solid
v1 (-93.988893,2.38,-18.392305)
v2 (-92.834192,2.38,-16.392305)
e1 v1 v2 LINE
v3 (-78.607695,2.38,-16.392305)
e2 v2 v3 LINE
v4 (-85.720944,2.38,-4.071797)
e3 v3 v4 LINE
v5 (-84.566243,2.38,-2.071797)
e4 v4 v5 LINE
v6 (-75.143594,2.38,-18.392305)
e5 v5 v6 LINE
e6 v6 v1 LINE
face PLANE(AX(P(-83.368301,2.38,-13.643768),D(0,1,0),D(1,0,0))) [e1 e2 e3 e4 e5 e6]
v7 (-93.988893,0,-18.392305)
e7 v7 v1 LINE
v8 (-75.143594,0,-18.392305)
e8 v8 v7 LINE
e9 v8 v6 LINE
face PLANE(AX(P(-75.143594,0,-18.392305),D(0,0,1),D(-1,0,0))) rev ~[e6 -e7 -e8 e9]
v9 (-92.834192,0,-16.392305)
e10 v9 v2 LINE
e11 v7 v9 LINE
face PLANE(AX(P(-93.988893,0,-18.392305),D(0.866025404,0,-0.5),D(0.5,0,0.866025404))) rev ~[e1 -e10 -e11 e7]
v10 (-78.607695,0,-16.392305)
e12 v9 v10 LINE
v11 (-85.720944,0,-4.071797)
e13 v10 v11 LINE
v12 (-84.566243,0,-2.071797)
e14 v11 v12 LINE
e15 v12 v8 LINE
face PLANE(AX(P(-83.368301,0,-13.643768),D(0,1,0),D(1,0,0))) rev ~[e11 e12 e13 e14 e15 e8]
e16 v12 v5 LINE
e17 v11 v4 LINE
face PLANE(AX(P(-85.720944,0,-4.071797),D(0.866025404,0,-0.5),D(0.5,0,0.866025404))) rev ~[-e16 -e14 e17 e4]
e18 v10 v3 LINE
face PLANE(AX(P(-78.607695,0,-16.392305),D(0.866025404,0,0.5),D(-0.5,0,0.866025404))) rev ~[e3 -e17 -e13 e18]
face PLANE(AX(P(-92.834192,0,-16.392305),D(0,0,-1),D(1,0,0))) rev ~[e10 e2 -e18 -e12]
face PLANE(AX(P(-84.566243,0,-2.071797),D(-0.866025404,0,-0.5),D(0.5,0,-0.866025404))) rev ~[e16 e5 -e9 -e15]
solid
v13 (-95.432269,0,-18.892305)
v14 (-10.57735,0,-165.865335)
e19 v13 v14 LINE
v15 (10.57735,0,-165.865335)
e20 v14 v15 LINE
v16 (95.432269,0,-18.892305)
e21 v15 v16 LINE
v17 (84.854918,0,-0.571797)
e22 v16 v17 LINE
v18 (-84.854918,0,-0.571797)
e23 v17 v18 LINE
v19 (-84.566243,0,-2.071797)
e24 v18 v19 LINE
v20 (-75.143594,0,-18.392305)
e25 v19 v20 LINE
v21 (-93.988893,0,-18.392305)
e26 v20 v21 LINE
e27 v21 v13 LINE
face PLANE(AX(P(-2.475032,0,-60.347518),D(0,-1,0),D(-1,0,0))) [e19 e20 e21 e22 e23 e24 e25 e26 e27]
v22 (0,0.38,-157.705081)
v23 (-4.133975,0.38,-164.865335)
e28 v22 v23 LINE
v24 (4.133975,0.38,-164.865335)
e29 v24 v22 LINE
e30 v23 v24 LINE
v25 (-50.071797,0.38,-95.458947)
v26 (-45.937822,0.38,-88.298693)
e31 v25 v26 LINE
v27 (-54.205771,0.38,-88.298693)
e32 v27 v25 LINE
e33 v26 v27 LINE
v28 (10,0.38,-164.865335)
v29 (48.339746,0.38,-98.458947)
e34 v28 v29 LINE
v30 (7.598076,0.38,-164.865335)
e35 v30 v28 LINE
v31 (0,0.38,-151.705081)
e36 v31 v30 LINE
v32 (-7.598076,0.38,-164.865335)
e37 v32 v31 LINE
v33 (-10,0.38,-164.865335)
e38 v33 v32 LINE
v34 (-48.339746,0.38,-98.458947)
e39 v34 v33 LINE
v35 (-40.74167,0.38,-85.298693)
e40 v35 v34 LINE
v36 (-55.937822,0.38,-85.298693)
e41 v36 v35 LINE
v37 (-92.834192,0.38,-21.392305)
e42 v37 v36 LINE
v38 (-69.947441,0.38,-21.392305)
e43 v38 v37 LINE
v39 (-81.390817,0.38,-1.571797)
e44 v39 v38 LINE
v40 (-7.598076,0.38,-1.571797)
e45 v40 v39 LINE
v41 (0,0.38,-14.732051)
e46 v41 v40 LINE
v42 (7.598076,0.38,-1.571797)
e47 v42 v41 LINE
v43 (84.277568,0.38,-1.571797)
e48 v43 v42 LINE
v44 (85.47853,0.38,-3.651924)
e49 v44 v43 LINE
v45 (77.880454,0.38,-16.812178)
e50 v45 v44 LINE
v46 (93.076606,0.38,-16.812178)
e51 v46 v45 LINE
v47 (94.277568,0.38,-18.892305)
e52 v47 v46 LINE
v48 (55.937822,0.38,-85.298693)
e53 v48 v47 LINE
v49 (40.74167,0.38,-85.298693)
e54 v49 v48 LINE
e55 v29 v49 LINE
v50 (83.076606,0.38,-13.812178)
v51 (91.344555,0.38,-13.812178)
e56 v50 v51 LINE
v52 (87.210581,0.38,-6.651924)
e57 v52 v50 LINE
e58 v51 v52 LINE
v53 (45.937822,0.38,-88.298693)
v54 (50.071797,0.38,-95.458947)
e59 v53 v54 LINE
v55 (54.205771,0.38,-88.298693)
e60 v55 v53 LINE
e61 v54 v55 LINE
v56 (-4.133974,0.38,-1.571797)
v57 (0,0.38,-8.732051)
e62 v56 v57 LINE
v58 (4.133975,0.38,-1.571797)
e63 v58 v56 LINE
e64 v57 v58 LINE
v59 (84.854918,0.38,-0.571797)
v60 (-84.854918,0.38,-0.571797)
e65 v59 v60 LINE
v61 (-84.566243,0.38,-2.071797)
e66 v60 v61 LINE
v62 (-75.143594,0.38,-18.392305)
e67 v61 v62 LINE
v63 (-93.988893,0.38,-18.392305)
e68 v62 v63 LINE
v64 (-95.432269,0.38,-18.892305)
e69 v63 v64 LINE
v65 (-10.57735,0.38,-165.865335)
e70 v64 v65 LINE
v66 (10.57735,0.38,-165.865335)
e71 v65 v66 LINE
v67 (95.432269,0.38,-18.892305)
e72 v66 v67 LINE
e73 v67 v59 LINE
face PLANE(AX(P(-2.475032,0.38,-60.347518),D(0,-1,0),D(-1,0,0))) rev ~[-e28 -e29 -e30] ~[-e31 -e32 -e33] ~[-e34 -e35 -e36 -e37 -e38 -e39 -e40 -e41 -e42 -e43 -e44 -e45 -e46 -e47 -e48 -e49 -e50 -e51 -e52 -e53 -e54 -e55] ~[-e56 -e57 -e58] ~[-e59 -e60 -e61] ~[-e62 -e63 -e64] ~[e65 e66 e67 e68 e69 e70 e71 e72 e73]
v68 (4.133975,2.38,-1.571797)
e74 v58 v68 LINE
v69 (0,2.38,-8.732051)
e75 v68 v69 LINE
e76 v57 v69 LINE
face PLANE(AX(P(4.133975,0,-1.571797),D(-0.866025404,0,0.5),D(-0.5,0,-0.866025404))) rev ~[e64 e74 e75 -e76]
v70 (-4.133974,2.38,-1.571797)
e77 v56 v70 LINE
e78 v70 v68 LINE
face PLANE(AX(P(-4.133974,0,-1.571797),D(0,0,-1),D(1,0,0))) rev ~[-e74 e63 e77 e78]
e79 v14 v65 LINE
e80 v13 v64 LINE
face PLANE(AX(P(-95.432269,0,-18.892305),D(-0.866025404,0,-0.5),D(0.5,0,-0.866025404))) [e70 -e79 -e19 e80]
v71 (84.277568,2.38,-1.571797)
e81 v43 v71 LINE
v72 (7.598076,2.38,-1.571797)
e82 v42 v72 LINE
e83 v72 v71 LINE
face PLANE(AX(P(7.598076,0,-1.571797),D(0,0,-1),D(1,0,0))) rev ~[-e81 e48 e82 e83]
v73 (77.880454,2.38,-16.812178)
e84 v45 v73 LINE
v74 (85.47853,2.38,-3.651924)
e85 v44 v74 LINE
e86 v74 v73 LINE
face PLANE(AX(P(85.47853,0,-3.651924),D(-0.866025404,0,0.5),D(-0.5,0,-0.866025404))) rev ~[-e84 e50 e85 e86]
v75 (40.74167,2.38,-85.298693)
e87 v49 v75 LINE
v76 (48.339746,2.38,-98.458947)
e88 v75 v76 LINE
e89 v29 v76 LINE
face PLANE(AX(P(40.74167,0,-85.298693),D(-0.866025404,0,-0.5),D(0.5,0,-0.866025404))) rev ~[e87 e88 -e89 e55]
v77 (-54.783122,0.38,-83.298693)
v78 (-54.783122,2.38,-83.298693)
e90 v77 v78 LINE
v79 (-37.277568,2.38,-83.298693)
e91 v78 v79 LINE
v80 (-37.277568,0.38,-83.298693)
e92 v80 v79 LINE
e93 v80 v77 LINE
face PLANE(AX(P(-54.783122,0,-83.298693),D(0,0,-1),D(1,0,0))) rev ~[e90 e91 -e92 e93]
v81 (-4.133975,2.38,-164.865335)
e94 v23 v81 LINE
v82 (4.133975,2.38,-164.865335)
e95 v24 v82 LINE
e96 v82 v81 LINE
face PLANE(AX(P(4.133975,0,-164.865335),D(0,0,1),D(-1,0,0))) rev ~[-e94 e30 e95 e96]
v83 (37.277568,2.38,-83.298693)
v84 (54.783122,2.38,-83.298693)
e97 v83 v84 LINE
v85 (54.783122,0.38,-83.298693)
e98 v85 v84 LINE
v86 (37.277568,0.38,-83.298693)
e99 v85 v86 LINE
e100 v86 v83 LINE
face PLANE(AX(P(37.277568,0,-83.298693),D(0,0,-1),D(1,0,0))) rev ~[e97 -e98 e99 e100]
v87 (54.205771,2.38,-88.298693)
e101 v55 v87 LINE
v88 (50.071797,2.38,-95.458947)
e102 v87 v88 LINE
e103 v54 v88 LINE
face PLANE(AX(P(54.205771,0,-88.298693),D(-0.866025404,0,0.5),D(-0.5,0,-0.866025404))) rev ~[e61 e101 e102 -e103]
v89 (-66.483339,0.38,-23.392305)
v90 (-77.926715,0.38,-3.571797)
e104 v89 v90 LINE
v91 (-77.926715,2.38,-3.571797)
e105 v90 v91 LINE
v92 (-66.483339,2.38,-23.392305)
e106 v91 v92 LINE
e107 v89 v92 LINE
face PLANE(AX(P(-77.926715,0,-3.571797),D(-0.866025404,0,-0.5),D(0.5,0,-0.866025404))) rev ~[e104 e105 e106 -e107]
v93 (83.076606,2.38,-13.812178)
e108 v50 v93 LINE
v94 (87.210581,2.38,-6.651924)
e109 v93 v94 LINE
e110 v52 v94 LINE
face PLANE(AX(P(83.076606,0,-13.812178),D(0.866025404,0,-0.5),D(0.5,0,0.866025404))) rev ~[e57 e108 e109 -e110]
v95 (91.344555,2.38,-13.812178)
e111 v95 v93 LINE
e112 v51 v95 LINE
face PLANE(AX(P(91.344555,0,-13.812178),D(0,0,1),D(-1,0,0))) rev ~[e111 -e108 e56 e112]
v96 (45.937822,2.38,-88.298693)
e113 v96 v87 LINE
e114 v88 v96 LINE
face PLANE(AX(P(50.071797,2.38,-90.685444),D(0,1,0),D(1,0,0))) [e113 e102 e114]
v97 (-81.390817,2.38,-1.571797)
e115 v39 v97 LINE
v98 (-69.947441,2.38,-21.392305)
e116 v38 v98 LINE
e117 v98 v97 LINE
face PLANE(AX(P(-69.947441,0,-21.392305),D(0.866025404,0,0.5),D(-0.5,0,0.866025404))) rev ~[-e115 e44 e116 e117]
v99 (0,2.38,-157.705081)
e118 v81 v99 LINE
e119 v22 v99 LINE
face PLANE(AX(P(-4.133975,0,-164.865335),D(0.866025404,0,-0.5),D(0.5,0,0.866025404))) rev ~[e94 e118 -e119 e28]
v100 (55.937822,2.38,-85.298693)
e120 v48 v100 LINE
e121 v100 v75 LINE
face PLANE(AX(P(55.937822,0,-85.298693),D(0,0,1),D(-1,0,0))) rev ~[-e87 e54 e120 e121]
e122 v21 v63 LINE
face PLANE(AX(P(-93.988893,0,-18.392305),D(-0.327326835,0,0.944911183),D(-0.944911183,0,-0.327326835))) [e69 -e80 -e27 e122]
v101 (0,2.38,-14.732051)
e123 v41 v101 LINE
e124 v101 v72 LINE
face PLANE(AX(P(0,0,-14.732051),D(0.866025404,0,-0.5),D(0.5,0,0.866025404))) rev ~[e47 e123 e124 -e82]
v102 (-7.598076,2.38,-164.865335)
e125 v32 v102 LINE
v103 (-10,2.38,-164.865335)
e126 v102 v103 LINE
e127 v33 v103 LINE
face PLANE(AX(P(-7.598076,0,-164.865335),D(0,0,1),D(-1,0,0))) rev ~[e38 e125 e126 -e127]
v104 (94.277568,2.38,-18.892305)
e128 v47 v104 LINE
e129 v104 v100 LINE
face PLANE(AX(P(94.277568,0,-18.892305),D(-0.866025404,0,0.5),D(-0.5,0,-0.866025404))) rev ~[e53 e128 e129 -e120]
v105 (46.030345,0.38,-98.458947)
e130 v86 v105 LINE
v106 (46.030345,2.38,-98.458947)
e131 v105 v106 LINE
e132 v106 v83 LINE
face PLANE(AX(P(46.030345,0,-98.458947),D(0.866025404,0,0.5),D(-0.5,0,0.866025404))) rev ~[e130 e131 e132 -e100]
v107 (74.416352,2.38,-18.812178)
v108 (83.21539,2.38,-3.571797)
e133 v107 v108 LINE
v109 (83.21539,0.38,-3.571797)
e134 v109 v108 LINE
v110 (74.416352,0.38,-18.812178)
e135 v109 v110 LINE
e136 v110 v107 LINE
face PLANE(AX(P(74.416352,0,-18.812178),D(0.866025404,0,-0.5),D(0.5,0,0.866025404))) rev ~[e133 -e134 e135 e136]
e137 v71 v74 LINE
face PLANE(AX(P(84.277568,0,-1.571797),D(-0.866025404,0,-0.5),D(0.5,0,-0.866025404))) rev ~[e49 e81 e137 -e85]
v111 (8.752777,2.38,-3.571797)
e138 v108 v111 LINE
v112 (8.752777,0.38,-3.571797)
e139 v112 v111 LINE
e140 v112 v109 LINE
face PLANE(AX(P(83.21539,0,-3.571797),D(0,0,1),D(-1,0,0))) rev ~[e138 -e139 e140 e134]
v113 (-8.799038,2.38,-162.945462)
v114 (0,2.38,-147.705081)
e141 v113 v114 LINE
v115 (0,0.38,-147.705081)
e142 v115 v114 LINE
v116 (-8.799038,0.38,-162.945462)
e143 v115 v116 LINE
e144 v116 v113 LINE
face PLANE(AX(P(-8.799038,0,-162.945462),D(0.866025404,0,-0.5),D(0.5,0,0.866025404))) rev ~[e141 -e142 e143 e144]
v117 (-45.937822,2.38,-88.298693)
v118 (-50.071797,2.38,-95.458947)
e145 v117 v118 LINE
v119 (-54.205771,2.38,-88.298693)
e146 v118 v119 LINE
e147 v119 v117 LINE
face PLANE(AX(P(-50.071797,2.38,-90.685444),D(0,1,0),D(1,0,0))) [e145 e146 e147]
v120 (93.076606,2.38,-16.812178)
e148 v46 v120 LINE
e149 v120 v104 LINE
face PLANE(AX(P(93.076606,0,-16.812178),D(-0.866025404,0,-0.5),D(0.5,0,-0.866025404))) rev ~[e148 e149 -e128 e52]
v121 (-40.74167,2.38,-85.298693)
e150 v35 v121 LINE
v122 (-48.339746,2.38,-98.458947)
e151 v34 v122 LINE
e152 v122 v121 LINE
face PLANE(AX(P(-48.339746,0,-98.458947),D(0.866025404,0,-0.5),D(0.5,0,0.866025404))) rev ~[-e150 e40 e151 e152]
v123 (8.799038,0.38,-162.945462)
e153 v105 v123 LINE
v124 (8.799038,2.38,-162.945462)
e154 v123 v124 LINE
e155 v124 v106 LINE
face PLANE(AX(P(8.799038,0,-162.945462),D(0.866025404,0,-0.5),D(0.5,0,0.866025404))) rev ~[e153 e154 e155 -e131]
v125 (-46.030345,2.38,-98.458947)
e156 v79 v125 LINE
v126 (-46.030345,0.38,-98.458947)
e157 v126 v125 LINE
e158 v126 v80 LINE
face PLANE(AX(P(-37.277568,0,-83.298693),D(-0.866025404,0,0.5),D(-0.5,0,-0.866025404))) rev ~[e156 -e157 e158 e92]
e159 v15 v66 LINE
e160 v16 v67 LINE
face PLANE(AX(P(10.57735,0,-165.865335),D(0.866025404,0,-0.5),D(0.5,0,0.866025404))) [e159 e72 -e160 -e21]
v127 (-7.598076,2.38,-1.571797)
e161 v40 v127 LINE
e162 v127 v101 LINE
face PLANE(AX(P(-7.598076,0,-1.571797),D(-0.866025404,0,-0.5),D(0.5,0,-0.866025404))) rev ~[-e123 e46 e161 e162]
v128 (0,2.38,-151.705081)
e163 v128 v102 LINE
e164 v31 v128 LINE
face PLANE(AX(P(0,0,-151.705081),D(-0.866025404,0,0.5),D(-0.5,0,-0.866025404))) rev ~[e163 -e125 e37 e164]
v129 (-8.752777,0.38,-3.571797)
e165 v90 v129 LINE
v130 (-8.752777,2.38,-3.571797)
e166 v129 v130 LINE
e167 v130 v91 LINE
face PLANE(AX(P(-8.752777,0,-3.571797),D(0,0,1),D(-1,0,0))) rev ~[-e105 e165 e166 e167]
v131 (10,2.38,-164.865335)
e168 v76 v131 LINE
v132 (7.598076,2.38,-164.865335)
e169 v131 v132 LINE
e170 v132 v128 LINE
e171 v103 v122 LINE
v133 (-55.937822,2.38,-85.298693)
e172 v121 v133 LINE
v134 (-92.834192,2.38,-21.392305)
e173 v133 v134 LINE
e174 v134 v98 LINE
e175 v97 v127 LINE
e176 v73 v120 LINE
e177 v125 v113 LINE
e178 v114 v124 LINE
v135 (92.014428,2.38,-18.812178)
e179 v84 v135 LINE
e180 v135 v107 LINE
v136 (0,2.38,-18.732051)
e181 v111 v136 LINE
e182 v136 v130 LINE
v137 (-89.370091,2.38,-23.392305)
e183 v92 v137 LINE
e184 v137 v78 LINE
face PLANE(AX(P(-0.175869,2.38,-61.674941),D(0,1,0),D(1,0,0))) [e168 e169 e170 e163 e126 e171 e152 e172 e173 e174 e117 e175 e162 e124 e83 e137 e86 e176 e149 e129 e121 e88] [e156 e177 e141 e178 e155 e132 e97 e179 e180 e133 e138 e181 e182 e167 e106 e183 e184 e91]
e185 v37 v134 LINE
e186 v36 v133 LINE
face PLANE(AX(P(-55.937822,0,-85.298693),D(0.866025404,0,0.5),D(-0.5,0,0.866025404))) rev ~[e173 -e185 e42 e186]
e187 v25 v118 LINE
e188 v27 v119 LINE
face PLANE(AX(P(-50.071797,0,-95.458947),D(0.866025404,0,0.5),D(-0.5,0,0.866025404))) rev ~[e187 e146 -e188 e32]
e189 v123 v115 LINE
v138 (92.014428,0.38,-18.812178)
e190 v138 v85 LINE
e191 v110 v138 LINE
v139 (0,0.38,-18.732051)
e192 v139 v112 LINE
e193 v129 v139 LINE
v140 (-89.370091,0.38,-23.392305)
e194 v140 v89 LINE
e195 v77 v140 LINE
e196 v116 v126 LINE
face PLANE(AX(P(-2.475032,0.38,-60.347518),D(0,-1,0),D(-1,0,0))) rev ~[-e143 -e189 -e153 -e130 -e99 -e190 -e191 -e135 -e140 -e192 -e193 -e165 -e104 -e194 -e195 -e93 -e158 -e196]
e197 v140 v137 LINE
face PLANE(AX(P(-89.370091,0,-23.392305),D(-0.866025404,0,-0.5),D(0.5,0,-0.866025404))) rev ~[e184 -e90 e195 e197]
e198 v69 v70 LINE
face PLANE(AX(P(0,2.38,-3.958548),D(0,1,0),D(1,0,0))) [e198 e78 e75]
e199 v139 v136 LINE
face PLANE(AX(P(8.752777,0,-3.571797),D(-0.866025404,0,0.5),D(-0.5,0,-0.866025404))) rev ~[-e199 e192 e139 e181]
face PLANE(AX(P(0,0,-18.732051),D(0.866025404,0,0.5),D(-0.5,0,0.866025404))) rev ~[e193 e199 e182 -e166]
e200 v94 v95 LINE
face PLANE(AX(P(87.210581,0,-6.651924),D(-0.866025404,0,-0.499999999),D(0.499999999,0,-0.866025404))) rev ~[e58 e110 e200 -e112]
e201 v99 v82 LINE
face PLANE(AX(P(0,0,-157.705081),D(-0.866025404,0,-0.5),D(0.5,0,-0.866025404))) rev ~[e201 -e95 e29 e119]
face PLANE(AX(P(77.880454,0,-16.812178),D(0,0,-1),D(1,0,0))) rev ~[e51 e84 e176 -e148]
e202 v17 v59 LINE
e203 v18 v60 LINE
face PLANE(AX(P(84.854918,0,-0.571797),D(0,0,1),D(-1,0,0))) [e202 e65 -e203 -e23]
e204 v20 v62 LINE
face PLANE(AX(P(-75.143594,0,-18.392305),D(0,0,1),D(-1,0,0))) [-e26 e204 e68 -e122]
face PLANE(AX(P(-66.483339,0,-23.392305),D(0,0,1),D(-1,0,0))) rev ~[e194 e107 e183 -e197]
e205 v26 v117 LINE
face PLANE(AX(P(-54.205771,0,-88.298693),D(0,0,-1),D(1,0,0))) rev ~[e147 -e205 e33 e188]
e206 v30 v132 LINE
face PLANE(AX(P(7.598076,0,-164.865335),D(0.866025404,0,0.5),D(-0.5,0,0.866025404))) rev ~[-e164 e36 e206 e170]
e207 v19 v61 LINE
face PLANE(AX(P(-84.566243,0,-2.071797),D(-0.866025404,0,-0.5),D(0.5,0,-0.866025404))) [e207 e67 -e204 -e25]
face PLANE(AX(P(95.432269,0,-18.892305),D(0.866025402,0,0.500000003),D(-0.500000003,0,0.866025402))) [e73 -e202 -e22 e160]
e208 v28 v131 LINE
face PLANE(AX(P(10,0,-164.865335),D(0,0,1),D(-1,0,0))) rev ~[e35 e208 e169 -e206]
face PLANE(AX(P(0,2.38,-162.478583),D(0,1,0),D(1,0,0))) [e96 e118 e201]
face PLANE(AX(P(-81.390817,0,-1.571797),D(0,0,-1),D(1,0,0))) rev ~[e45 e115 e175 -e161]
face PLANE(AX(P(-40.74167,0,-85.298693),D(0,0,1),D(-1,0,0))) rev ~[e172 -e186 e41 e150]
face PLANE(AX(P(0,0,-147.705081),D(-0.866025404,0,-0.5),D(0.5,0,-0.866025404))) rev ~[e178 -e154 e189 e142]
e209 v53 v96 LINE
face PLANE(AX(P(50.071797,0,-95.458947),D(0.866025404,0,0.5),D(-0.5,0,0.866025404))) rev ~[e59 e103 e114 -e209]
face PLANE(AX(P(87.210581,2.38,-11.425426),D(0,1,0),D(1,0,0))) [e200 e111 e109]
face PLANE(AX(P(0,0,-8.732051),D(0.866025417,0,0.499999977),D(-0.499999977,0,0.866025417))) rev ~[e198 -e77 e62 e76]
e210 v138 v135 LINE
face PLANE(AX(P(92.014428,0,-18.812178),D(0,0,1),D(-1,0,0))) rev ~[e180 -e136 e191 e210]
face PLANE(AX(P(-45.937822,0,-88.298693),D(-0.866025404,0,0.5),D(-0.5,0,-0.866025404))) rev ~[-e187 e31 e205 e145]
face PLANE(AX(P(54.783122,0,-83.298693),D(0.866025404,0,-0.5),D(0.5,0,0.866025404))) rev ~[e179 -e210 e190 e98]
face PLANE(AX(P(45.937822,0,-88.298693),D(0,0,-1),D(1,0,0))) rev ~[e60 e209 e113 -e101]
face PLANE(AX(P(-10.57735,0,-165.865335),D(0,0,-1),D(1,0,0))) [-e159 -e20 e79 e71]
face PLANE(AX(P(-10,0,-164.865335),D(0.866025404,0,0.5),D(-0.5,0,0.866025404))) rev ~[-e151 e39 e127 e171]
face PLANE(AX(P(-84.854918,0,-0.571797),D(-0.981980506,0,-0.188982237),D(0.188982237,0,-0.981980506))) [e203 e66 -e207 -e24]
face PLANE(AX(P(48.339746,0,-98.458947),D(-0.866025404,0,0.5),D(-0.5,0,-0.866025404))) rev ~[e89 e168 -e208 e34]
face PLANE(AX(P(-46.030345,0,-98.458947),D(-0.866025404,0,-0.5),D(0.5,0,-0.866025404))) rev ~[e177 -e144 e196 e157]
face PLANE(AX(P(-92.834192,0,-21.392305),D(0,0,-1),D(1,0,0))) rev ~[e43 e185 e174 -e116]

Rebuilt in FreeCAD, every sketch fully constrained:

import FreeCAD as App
import Part
import Sketcher

V = App.Vector
Q = App.Units.Quantity

doc = App.newDocument("Part")
params = doc.addObject("Spreadsheet::Sheet", "Params")
for row, (alias, value) in enumerate([
    ("pad1_length", "2.38 mm"),
    ("pad2_length", "2.38 mm"),
    ("pad3_length", "2.38 mm"),
    ("pad4_length", "2.38 mm"),
    ("pad5_length", "2.38 mm"),
    ("pad6_length", "2.38 mm"),
    ("pad7_length", "2.38 mm"),
    ("pad8_length", "0.38 mm"),
], start=1):
    params.set(f"A{row}", alias)
    params.set(f"B{row}", "=" + value)
    params.setAlias(f"B{row}", alias)

body = doc.addObject("PartDesign::Body", "Body")

# Sketch on XZ plane
sketch1 = body.newObject("Sketcher::SketchObject", "Sketch")
sketch1.AttachmentSupport = (doc.getObject("XZ_Plane"), [""])
sketch1.MapMode = "FlatFace"
sketch1.addGeometry(Part.LineSegment(V(-85.720944, -4.071797, 0), V(-84.566243, -2.071797, 0)), False)
sketch1.addGeometry(Part.LineSegment(V(-84.566243, -2.071797, 0), V(-75.143594, -18.392305, 0)), False)
sketch1.addGeometry(Part.LineSegment(V(-75.143594, -18.392305, 0), V(-93.988893, -18.392305, 0)), False)
sketch1.addGeometry(Part.LineSegment(V(-93.988893, -18.392305, 0), V(-92.834192, -16.392305, 0)), False)
sketch1.addGeometry(Part.LineSegment(V(-92.834192, -16.392305, 0), V(-78.607695, -16.392305, 0)), False)
sketch1.addGeometry(Part.LineSegment(V(-78.607695, -16.392305, 0), V(-85.720944, -4.071797, 0)), False)
sketch1.addConstraint(Sketcher.Constraint("Coincident", 0, 2, 1, 1))
sketch1.addConstraint(Sketcher.Constraint("Coincident", 1, 2, 2, 1))
sketch1.addConstraint(Sketcher.Constraint("Coincident", 2, 2, 3, 1))
sketch1.addConstraint(Sketcher.Constraint("Coincident", 3, 2, 4, 1))
sketch1.addConstraint(Sketcher.Constraint("Coincident", 4, 2, 5, 1))
sketch1.addConstraint(Sketcher.Constraint("Coincident", 5, 2, 0, 1))
sketch1.addConstraint(Sketcher.Constraint("Horizontal", 2))
sketch1.addConstraint(Sketcher.Constraint("Horizontal", 4))
sketch1.addConstraint(Sketcher.Constraint("Parallel", 0, 3))
sketch1.addConstraint(Sketcher.Constraint("Parallel", 1, 5))
sketch1.addConstraint(Sketcher.Constraint("Equal", 0, 3))
sketch1.addConstraint(Sketcher.Constraint("Angle", 0, Q("60 deg")))
sketch1.addConstraint(Sketcher.Constraint("Angle", 1, Q("-60 deg")))
sketch1.addConstraint(Sketcher.Constraint("DistanceY", 2, 2, 3, 2, 2.0))
sketch1.addConstraint(Sketcher.Constraint("DistanceX", 2, 2, 2, 1, 18.845299))
sketch1.addConstraint(Sketcher.Constraint("Distance", 1, 18.845299))
sketch1.addConstraint(Sketcher.Constraint("DistanceX", 0, 2, -1, 1, 84.566243))
sketch1.addConstraint(Sketcher.Constraint("DistanceY", 0, 2, -1, 1, 2.071797))
pad1 = body.newObject("PartDesign::Pad", "Pad")
pad1.Profile = sketch1
pad1.setExpression("Length", "Params.pad1_length")
pad1.Reversed = True
body2 = doc.addObject("PartDesign::Body", "Body001")

# Sketch on XZ plane
sketch2 = body2.newObject("Sketcher::SketchObject", "Sketch001")
sketch2.AttachmentSupport = (doc.getObject("XZ_Plane001"), [""])
sketch2.MapMode = "FlatFace"
sketch2.addGeometry(Part.LineSegment(V(0, -8.732051, 0), V(-4.133974, -1.571797, 0)), False)
sketch2.addGeometry(Part.LineSegment(V(-4.133974, -1.571797, 0), V(4.133975, -1.571797, 0)), False)
sketch2.addGeometry(Part.LineSegment(V(4.133975, -1.571797, 0), V(0, -8.732051, 0)), False)
sketch2.addConstraint(Sketcher.Constraint("Coincident", 0, 2, 1, 1))
sketch2.addConstraint(Sketcher.Constraint("Coincident", 1, 2, 2, 1))
sketch2.addConstraint(Sketcher.Constraint("Coincident", 2, 2, 0, 1))
sketch2.addConstraint(Sketcher.Constraint("Horizontal", 1))
sketch2.addConstraint(Sketcher.Constraint("PointOnObject", 2, 2, -2))
sketch2.addConstraint(Sketcher.Constraint("Equal", 0, 2))
sketch2.addConstraint(Sketcher.Constraint("Angle", 0, Q("119.999998 deg")))
sketch2.addConstraint(Sketcher.Constraint("DistanceX", 1, 1, 1, 2, 8.267949))
sketch2.addConstraint(Sketcher.Constraint("DistanceY", 2, 2, -1, 1, 8.732051))
pad2 = body2.newObject("PartDesign::Pad", "Pad001")
pad2.Profile = sketch2
pad2.setExpression("Length", "Params.pad2_length")
pad2.Reversed = True
body3 = doc.addObject("PartDesign::Body", "Body002")

# Sketch on XZ plane
sketch3 = body3.newObject("Sketcher::SketchObject", "Sketch002")
sketch3.AttachmentSupport = (doc.getObject("XZ_Plane002"), [""])
sketch3.MapMode = "FlatFace"
sketch3.addGeometry(Part.LineSegment(V(91.344555, -13.812178, 0), V(83.076606, -13.812178, 0)), False)
sketch3.addGeometry(Part.LineSegment(V(83.076606, -13.812178, 0), V(87.210581, -6.651924, 0)), False)
sketch3.addGeometry(Part.LineSegment(V(87.210581, -6.651924, 0), V(91.344555, -13.812178, 0)), False)
sketch3.addConstraint(Sketcher.Constraint("Coincident", 0, 2, 1, 1))
sketch3.addConstraint(Sketcher.Constraint("Coincident", 1, 2, 2, 1))
sketch3.addConstraint(Sketcher.Constraint("Coincident", 2, 2, 0, 1))
sketch3.addConstraint(Sketcher.Constraint("Horizontal", 0))
sketch3.addConstraint(Sketcher.Constraint("Equal", 1, 2))
sketch3.addConstraint(Sketcher.Constraint("Angle", 1, Q("60 deg")))
sketch3.addConstraint(Sketcher.Constraint("DistanceX", 0, 2, 0, 1, 8.267949))
sketch3.addConstraint(Sketcher.Constraint("DistanceX", -1, 1, 1, 2, 87.210581))
sketch3.addConstraint(Sketcher.Constraint("DistanceY", 0, 2, -1, 1, 13.812178))
pad3 = body3.newObject("PartDesign::Pad", "Pad002")
pad3.Profile = sketch3
pad3.setExpression("Length", "Params.pad3_length")
pad3.Reversed = True
body4 = doc.addObject("PartDesign::Body", "Body003")

# Sketch on XZ plane
sketch4 = body4.newObject("Sketcher::SketchObject", "Sketch003")
sketch4.AttachmentSupport = (doc.getObject("XZ_Plane003"), [""])
sketch4.MapMode = "FlatFace"
sketch4.addGeometry(Part.LineSegment(V(50.071797, -95.458947, 0), V(45.937822, -88.298693, 0)), False)
sketch4.addGeometry(Part.LineSegment(V(45.937822, -88.298693, 0), V(54.205771, -88.298693, 0)), False)
sketch4.addGeometry(Part.LineSegment(V(54.205771, -88.298693, 0), V(50.071797, -95.458947, 0)), False)
sketch4.addConstraint(Sketcher.Constraint("Coincident", 0, 2, 1, 1))
sketch4.addConstraint(Sketcher.Constraint("Coincident", 1, 2, 2, 1))
sketch4.addConstraint(Sketcher.Constraint("Coincident", 2, 2, 0, 1))
sketch4.addConstraint(Sketcher.Constraint("Horizontal", 1))
sketch4.addConstraint(Sketcher.Constraint("Equal", 0, 2))
sketch4.addConstraint(Sketcher.Constraint("Angle", 0, Q("120 deg")))
sketch4.addConstraint(Sketcher.Constraint("DistanceX", 1, 1, 1, 2, 8.267949))
sketch4.addConstraint(Sketcher.Constraint("DistanceX", -1, 1, 1, 2, 54.205771))
sketch4.addConstraint(Sketcher.Constraint("DistanceY", 0, 2, -1, 1, 88.298693))
pad4 = body4.newObject("PartDesign::Pad", "Pad003")
pad4.Profile = sketch4
pad4.setExpression("Length", "Params.pad4_length")
pad4.Reversed = True
body5 = doc.addObject("PartDesign::Body", "Body004")

# Sketch on XZ plane
sketch5 = body5.newObject("Sketcher::SketchObject", "Sketch004")
sketch5.AttachmentSupport = (doc.getObject("XZ_Plane004"), [""])
sketch5.MapMode = "FlatFace"
sketch5.addGeometry(Part.LineSegment(V(4.133975, -164.865335, 0), V(-4.133975, -164.865335, 0)), False)
sketch5.addGeometry(Part.LineSegment(V(-4.133975, -164.865335, 0), V(0, -157.705081, 0)), False)
sketch5.addGeometry(Part.LineSegment(V(0, -157.705081, 0), V(4.133975, -164.865335, 0)), False)
sketch5.addConstraint(Sketcher.Constraint("Coincident", 0, 2, 1, 1))
sketch5.addConstraint(Sketcher.Constraint("Coincident", 1, 2, 2, 1))
sketch5.addConstraint(Sketcher.Constraint("Coincident", 2, 2, 0, 1))
sketch5.addConstraint(Sketcher.Constraint("Horizontal", 0))
sketch5.addConstraint(Sketcher.Constraint("PointOnObject", 1, 2, -2))
sketch5.addConstraint(Sketcher.Constraint("Equal", 1, 2))
sketch5.addConstraint(Sketcher.Constraint("Angle", 1, Q("60 deg")))
sketch5.addConstraint(Sketcher.Constraint("DistanceX", 0, 2, 0, 1, 8.267949))
sketch5.addConstraint(Sketcher.Constraint("DistanceY", 1, 2, -1, 1, 157.705081))
pad5 = body5.newObject("PartDesign::Pad", "Pad004")
pad5.Profile = sketch5
pad5.setExpression("Length", "Params.pad5_length")
pad5.Reversed = True
body6 = doc.addObject("PartDesign::Body", "Body005")

# Sketch on XZ plane
sketch6 = body6.newObject("Sketcher::SketchObject", "Sketch005")
sketch6.AttachmentSupport = (doc.getObject("XZ_Plane005"), [""])
sketch6.MapMode = "FlatFace"
sketch6.addGeometry(Part.LineSegment(V(-50.071797, -95.458947, 0), V(-54.205771, -88.298693, 0)), False)
sketch6.addGeometry(Part.LineSegment(V(-54.205771, -88.298693, 0), V(-45.937822, -88.298693, 0)), False)
sketch6.addGeometry(Part.LineSegment(V(-45.937822, -88.298693, 0), V(-50.071797, -95.458947, 0)), False)
sketch6.addConstraint(Sketcher.Constraint("Coincident", 0, 2, 1, 1))
sketch6.addConstraint(Sketcher.Constraint("Coincident", 1, 2, 2, 1))
sketch6.addConstraint(Sketcher.Constraint("Coincident", 2, 2, 0, 1))
sketch6.addConstraint(Sketcher.Constraint("Horizontal", 1))
sketch6.addConstraint(Sketcher.Constraint("Equal", 0, 2))
sketch6.addConstraint(Sketcher.Constraint("Angle", 0, Q("120 deg")))
sketch6.addConstraint(Sketcher.Constraint("DistanceX", 1, 1, 1, 2, 8.267949))
sketch6.addConstraint(Sketcher.Constraint("DistanceX", 0, 2, -1, 1, 54.205771))
sketch6.addConstraint(Sketcher.Constraint("DistanceY", 0, 2, -1, 1, 88.298693))
pad6 = body6.newObject("PartDesign::Pad", "Pad005")
pad6.Profile = sketch6
pad6.setExpression("Length", "Params.pad6_length")
pad6.Reversed = True
body7 = doc.addObject("PartDesign::Body", "Body006")
body7.AllowCompound = True

# Sketch on XZ plane
sketch7 = body7.newObject("Sketcher::SketchObject", "Sketch006")
sketch7.AttachmentSupport = (doc.getObject("XZ_Plane006"), [""])
sketch7.MapMode = "FlatFace"
sketch7.addGeometry(Part.LineSegment(V(-92.834192, -21.392305, 0), V(-69.947441, -21.392305, 0)), False)
sketch7.addGeometry(Part.LineSegment(V(-69.947441, -21.392305, 0), V(-81.390817, -1.571797, 0)), False)
sketch7.addGeometry(Part.LineSegment(V(-81.390817, -1.571797, 0), V(-7.598076, -1.571797, 0)), False)
sketch7.addGeometry(Part.LineSegment(V(-7.598076, -1.571797, 0), V(0, -14.732051, 0)), False)
sketch7.addGeometry(Part.LineSegment(V(0, -14.732051, 0), V(7.598076, -1.571797, 0)), False)
sketch7.addGeometry(Part.LineSegment(V(7.598076, -1.571797, 0), V(84.277568, -1.571797, 0)), False)
sketch7.addGeometry(Part.LineSegment(V(84.277568, -1.571797, 0), V(85.47853, -3.651924, 0)), False)
sketch7.addGeometry(Part.LineSegment(V(85.47853, -3.651924, 0), V(77.880454, -16.812178, 0)), False)
sketch7.addGeometry(Part.LineSegment(V(77.880454, -16.812178, 0), V(93.076606, -16.812178, 0)), False)
sketch7.addGeometry(Part.LineSegment(V(93.076606, -16.812178, 0), V(94.277568, -18.892305, 0)), False)
sketch7.addGeometry(Part.LineSegment(V(94.277568, -18.892305, 0), V(55.937822, -85.298693, 0)), False)
sketch7.addGeometry(Part.LineSegment(V(55.937822, -85.298693, 0), V(40.74167, -85.298693, 0)), False)
sketch7.addGeometry(Part.LineSegment(V(40.74167, -85.298693, 0), V(48.339746, -98.458947, 0)), False)
sketch7.addGeometry(Part.LineSegment(V(48.339746, -98.458947, 0), V(10, -164.865335, 0)), False)
sketch7.addGeometry(Part.LineSegment(V(10, -164.865335, 0), V(7.598076, -164.865335, 0)), False)
sketch7.addGeometry(Part.LineSegment(V(7.598076, -164.865335, 0), V(0, -151.705081, 0)), False)
sketch7.addGeometry(Part.LineSegment(V(0, -151.705081, 0), V(-7.598076, -164.865335, 0)), False)
sketch7.addGeometry(Part.LineSegment(V(-7.598076, -164.865335, 0), V(-10, -164.865335, 0)), False)
sketch7.addGeometry(Part.LineSegment(V(-10, -164.865335, 0), V(-48.339746, -98.458947, 0)), False)
sketch7.addGeometry(Part.LineSegment(V(-48.339746, -98.458947, 0), V(-40.74167, -85.298693, 0)), False)
sketch7.addGeometry(Part.LineSegment(V(-40.74167, -85.298693, 0), V(-55.937822, -85.298693, 0)), False)
sketch7.addGeometry(Part.LineSegment(V(-55.937822, -85.298693, 0), V(-92.834192, -21.392305, 0)), False)
sketch7.addGeometry(Part.LineSegment(V(0, -18.732051, 0), V(-8.752777, -3.571797, 0)), False)
sketch7.addGeometry(Part.LineSegment(V(-8.752777, -3.571797, 0), V(-77.926715, -3.571797, 0)), False)
sketch7.addGeometry(Part.LineSegment(V(-77.926715, -3.571797, 0), V(-66.483339, -23.392305, 0)), False)
sketch7.addGeometry(Part.LineSegment(V(-66.483339, -23.392305, 0), V(-89.370091, -23.392305, 0)), False)
sketch7.addGeometry(Part.LineSegment(V(-89.370091, -23.392305, 0), V(-54.783122, -83.298693, 0)), False)
sketch7.addGeometry(Part.LineSegment(V(-54.783122, -83.298693, 0), V(-37.277568, -83.298693, 0)), False)
sketch7.addGeometry(Part.LineSegment(V(-37.277568, -83.298693, 0), V(-46.030345, -98.458947, 0)), False)
sketch7.addGeometry(Part.LineSegment(V(-46.030345, -98.458947, 0), V(-8.799038, -162.945462, 0)), False)
sketch7.addGeometry(Part.LineSegment(V(-8.799038, -162.945462, 0), V(0, -147.705081, 0)), False)
sketch7.addGeometry(Part.LineSegment(V(0, -147.705081, 0), V(8.799038, -162.945462, 0)), False)
sketch7.addGeometry(Part.LineSegment(V(8.799038, -162.945462, 0), V(46.030345, -98.458947, 0)), False)
sketch7.addGeometry(Part.LineSegment(V(46.030345, -98.458947, 0), V(37.277568, -83.298693, 0)), False)
sketch7.addGeometry(Part.LineSegment(V(37.277568, -83.298693, 0), V(54.783122, -83.298693, 0)), False)
sketch7.addGeometry(Part.LineSegment(V(54.783122, -83.298693, 0), V(92.014428, -18.812178, 0)), False)
sketch7.addGeometry(Part.LineSegment(V(92.014428, -18.812178, 0), V(74.416352, -18.812178, 0)), False)
sketch7.addGeometry(Part.LineSegment(V(74.416352, -18.812178, 0), V(83.21539, -3.571797, 0)), False)
sketch7.addGeometry(Part.LineSegment(V(83.21539, -3.571797, 0), V(8.752777, -3.571797, 0)), False)
sketch7.addGeometry(Part.LineSegment(V(8.752777, -3.571797, 0), V(0, -18.732051, 0)), False)
sketch7.addConstraint(Sketcher.Constraint("Coincident", 0, 2, 1, 1))
sketch7.addConstraint(Sketcher.Constraint("Coincident", 1, 2, 2, 1))
sketch7.addConstraint(Sketcher.Constraint("Coincident", 2, 2, 3, 1))
sketch7.addConstraint(Sketcher.Constraint("Coincident", 3, 2, 4, 1))
sketch7.addConstraint(Sketcher.Constraint("Coincident", 4, 2, 5, 1))
sketch7.addConstraint(Sketcher.Constraint("Coincident", 5, 2, 6, 1))
sketch7.addConstraint(Sketcher.Constraint("Coincident", 6, 2, 7, 1))
sketch7.addConstraint(Sketcher.Constraint("Coincident", 7, 2, 8, 1))
sketch7.addConstraint(Sketcher.Constraint("Coincident", 8, 2, 9, 1))
sketch7.addConstraint(Sketcher.Constraint("Coincident", 9, 2, 10, 1))
sketch7.addConstraint(Sketcher.Constraint("Coincident", 10, 2, 11, 1))
sketch7.addConstraint(Sketcher.Constraint("Coincident", 11, 2, 12, 1))
sketch7.addConstraint(Sketcher.Constraint("Coincident", 12, 2, 13, 1))
sketch7.addConstraint(Sketcher.Constraint("Coincident", 13, 2, 14, 1))
sketch7.addConstraint(Sketcher.Constraint("Coincident", 14, 2, 15, 1))
sketch7.addConstraint(Sketcher.Constraint("Coincident", 15, 2, 16, 1))
sketch7.addConstraint(Sketcher.Constraint("Coincident", 16, 2, 17, 1))
sketch7.addConstraint(Sketcher.Constraint("Coincident", 17, 2, 18, 1))
sketch7.addConstraint(Sketcher.Constraint("Coincident", 18, 2, 19, 1))
sketch7.addConstraint(Sketcher.Constraint("Coincident", 19, 2, 20, 1))
sketch7.addConstraint(Sketcher.Constraint("Coincident", 20, 2, 21, 1))
sketch7.addConstraint(Sketcher.Constraint("Coincident", 21, 2, 0, 1))
sketch7.addConstraint(Sketcher.Constraint("Coincident", 22, 2, 23, 1))
sketch7.addConstraint(Sketcher.Constraint("Coincident", 23, 2, 24, 1))
sketch7.addConstraint(Sketcher.Constraint("Coincident", 24, 2, 25, 1))
sketch7.addConstraint(Sketcher.Constraint("Coincident", 25, 2, 26, 1))
sketch7.addConstraint(Sketcher.Constraint("Coincident", 26, 2, 27, 1))
sketch7.addConstraint(Sketcher.Constraint("Coincident", 27, 2, 28, 1))
sketch7.addConstraint(Sketcher.Constraint("Coincident", 28, 2, 29, 1))
sketch7.addConstraint(Sketcher.Constraint("Coincident", 29, 2, 30, 1))
sketch7.addConstraint(Sketcher.Constraint("Coincident", 30, 2, 31, 1))
sketch7.addConstraint(Sketcher.Constraint("Coincident", 31, 2, 32, 1))
sketch7.addConstraint(Sketcher.Constraint("Coincident", 32, 2, 33, 1))
sketch7.addConstraint(Sketcher.Constraint("Coincident", 33, 2, 34, 1))
sketch7.addConstraint(Sketcher.Constraint("Coincident", 34, 2, 35, 1))
sketch7.addConstraint(Sketcher.Constraint("Coincident", 35, 2, 36, 1))
sketch7.addConstraint(Sketcher.Constraint("Coincident", 36, 2, 37, 1))
sketch7.addConstraint(Sketcher.Constraint("Coincident", 37, 2, 38, 1))
sketch7.addConstraint(Sketcher.Constraint("Coincident", 38, 2, 39, 1))
sketch7.addConstraint(Sketcher.Constraint("Coincident", 39, 2, 22, 1))
sketch7.addConstraint(Sketcher.Constraint("Horizontal", 0))
sketch7.addConstraint(Sketcher.Constraint("Horizontal", 2))
sketch7.addConstraint(Sketcher.Constraint("Horizontal", 5))
sketch7.addConstraint(Sketcher.Constraint("Horizontal", 8))
sketch7.addConstraint(Sketcher.Constraint("Horizontal", 11))
sketch7.addConstraint(Sketcher.Constraint("Horizontal", 14))
sketch7.addConstraint(Sketcher.Constraint("Horizontal", 17))
sketch7.addConstraint(Sketcher.Constraint("Horizontal", 20))
sketch7.addConstraint(Sketcher.Constraint("Horizontal", 23))
sketch7.addConstraint(Sketcher.Constraint("Horizontal", 25))
sketch7.addConstraint(Sketcher.Constraint("Horizontal", 27))
sketch7.addConstraint(Sketcher.Constraint("Horizontal", 34))
sketch7.addConstraint(Sketcher.Constraint("Horizontal", 36))
sketch7.addConstraint(Sketcher.Constraint("Horizontal", 38))
sketch7.addConstraint(Sketcher.Constraint("Symmetric", 2, 2, 4, 2, -2))
sketch7.addConstraint(Sketcher.Constraint("Symmetric", 14, 2, 16, 2, -2))
sketch7.addConstraint(Sketcher.Constraint("Symmetric", 12, 2, 18, 2, -2))
sketch7.addConstraint(Sketcher.Constraint("Symmetric", 11, 2, 19, 2, -2))
sketch7.addConstraint(Sketcher.Constraint("Symmetric", 29, 2, 31, 2, -2))
sketch7.addConstraint(Sketcher.Constraint("Symmetric", 28, 2, 32, 2, -2))
sketch7.addConstraint(Sketcher.Constraint("Symmetric", 27, 2, 33, 2, -2))
sketch7.addConstraint(Sketcher.Constraint("Symmetric", 22, 2, 38, 2, -2))
sketch7.addConstraint(Sketcher.Constraint("PointOnObject", 3, 2, -2))
sketch7.addConstraint(Sketcher.Constraint("PointOnObject", 15, 2, -2))
sketch7.addConstraint(Sketcher.Constraint("PointOnObject", 30, 2, -2))
sketch7.addConstraint(Sketcher.Constraint("PointOnObject", 39, 2, -2))
sketch7.addConstraint(Sketcher.Constraint("Parallel", 1, 3))
sketch7.addConstraint(Sketcher.Constraint("Parallel", 3, 6))
sketch7.addConstraint(Sketcher.Constraint("Parallel", 4, 7))
sketch7.addConstraint(Sketcher.Constraint("Parallel", 6, 9))
sketch7.addConstraint(Sketcher.Constraint("Parallel", 7, 10))
sketch7.addConstraint(Sketcher.Constraint("Parallel", 9, 12))
sketch7.addConstraint(Sketcher.Constraint("Parallel", 10, 13))
sketch7.addConstraint(Sketcher.Constraint("Parallel", 12, 15))
sketch7.addConstraint(Sketcher.Constraint("Parallel", 15, 18))
sketch7.addConstraint(Sketcher.Constraint("Parallel", 18, 21))
sketch7.addConstraint(Sketcher.Constraint("Parallel", 21, 22))
sketch7.addConstraint(Sketcher.Constraint("Parallel", 22, 24))
sketch7.addConstraint(Sketcher.Constraint("Parallel", 24, 26))
sketch7.addConstraint(Sketcher.Constraint("Parallel", 19, 28))
sketch7.addConstraint(Sketcher.Constraint("Parallel", 26, 29))
sketch7.addConstraint(Sketcher.Constraint("Parallel", 28, 30))
sketch7.addConstraint(Sketcher.Constraint("Parallel", 32, 35))
sketch7.addConstraint(Sketcher.Constraint("Parallel", 35, 37))
sketch7.addConstraint(Sketcher.Constraint("Horizontal", 18, 2, 28, 2))
sketch7.addConstraint(Sketcher.Constraint("Vertical", 4, 2, 14, 2))
sketch7.addConstraint(Sketcher.Constraint("Equal", 8, 11))
sketch7.addConstraint(Sketcher.Constraint("Equal", 11, 20))
sketch7.addConstraint(Sketcher.Constraint("Equal", 0, 25))
sketch7.addConstraint(Sketcher.Constraint("Equal", 27, 34))
sketch7.addConstraint(Sketcher.Constraint("Equal", 4, 7))
sketch7.addConstraint(Sketcher.Constraint("Equal", 6, 9))
sketch7.addConstraint(Sketcher.Constraint("Equal", 7, 12))
sketch7.addConstraint(Sketcher.Constraint("Equal", 10, 13))
sketch7.addConstraint(Sketcher.Constraint("Equal", 1, 24))
sketch7.addConstraint(Sketcher.Constraint("Equal", 22, 28))
sketch7.addConstraint(Sketcher.Constraint("Equal", 32, 35))
sketch7.addConstraint(Sketcher.Constraint("Equal", 31, 37))
sketch7.addConstraint(Sketcher.Constraint("Angle", 1, Q("120 deg")))
sketch7.addConstraint(Sketcher.Constraint("DistanceX", -1, 1, 13, 2, 10.0))
sketch7.addConstraint(Sketcher.Constraint("DistanceX", 5, 2, 9, 2, 10.0))
sketch7.addConstraint(Sketcher.Constraint("DistanceY", 22, 2, 2, 2, 2.0))
sketch7.addConstraint(Sketcher.Constraint("DistanceY", 20, 2, 26, 2, 2.0))
sketch7.addConstraint(Sketcher.Constraint("DistanceY", 15, 2, 30, 2, 4.0))
sketch7.addConstraint(Sketcher.Constraint("DistanceX", 0, 1, 0, 2, 22.886751))
sketch7.addConstraint(Sketcher.Constraint("DistanceX", 2, 1, 2, 2, 73.792741))
sketch7.addConstraint(Sketcher.Constraint("DistanceX", 5, 1, 5, 2, 76.679492))
sketch7.addConstraint(Sketcher.Constraint("DistanceX", 23, 2, 23, 1, 69.173938))
sketch7.addConstraint(Sketcher.Constraint("DistanceX", 11, 2, 9, 2, 53.535898))
sketch7.addConstraint(Sketcher.Constraint("DistanceX", 36, 2, 7, 2, 3.464102))
sketch7.addConstraint(Sketcher.Constraint("Distance", 1, 22.886751))
sketch7.addConstraint(Sketcher.Constraint("DistanceY", 3, 2, -1, 1, 14.732051))
pad7 = body7.newObject("PartDesign::Pad", "Pad006")
pad7.Profile = sketch7
pad7.setExpression("Length", "Params.pad7_length")
pad7.Reversed = True
doc.recompute()

boolean = body7.newObject("PartDesign::Boolean", "Boolean")
boolean.Type = "Fuse"
boolean.addObjects([body6])
doc.recompute()

boolean2 = body7.newObject("PartDesign::Boolean", "Boolean001")
boolean2.Type = "Fuse"
boolean2.addObjects([body2])
doc.recompute()

boolean3 = body7.newObject("PartDesign::Boolean", "Boolean002")
boolean3.Type = "Fuse"
boolean3.addObjects([body3])
doc.recompute()

boolean4 = body7.newObject("PartDesign::Boolean", "Boolean003")
boolean4.Type = "Fuse"
boolean4.addObjects([body4])
doc.recompute()

boolean5 = body7.newObject("PartDesign::Boolean", "Boolean004")
boolean5.Type = "Fuse"
boolean5.addObjects([body5])

# Sketch on XZ plane
sketch8 = body7.newObject("Sketcher::SketchObject", "Sketch007")
sketch8.AttachmentSupport = (doc.getObject("XZ_Plane006"), [""])
sketch8.MapMode = "FlatFace"
sketch8.addGeometry(Part.LineSegment(V(-75.143594, -18.392305, 0), V(-84.566243, -2.071797, 0)), False)
sketch8.addGeometry(Part.LineSegment(V(-84.566243, -2.071797, 0), V(-84.854918, -0.571797, 0)), False)
sketch8.addGeometry(Part.LineSegment(V(-84.854918, -0.571797, 0), V(84.854918, -0.571797, 0)), False)
sketch8.addGeometry(Part.LineSegment(V(84.854918, -0.571797, 0), V(95.432269, -18.892305, 0)), False)
sketch8.addGeometry(Part.LineSegment(V(95.432269, -18.892305, 0), V(10.57735, -165.865335, 0)), False)
sketch8.addGeometry(Part.LineSegment(V(10.57735, -165.865335, 0), V(-10.57735, -165.865335, 0)), False)
sketch8.addGeometry(Part.LineSegment(V(-10.57735, -165.865335, 0), V(-95.432269, -18.892305, 0)), False)
sketch8.addGeometry(Part.LineSegment(V(-95.432269, -18.892305, 0), V(-93.988893, -18.392305, 0)), False)
sketch8.addGeometry(Part.LineSegment(V(-93.988893, -18.392305, 0), V(-75.143594, -18.392305, 0)), False)
sketch8.addConstraint(Sketcher.Constraint("Coincident", 0, 2, 1, 1))
sketch8.addConstraint(Sketcher.Constraint("Coincident", 1, 2, 2, 1))
sketch8.addConstraint(Sketcher.Constraint("Coincident", 2, 2, 3, 1))
sketch8.addConstraint(Sketcher.Constraint("Coincident", 3, 2, 4, 1))
sketch8.addConstraint(Sketcher.Constraint("Coincident", 4, 2, 5, 1))
sketch8.addConstraint(Sketcher.Constraint("Coincident", 5, 2, 6, 1))
sketch8.addConstraint(Sketcher.Constraint("Coincident", 6, 2, 7, 1))
sketch8.addConstraint(Sketcher.Constraint("Coincident", 7, 2, 8, 1))
sketch8.addConstraint(Sketcher.Constraint("Coincident", 8, 2, 0, 1))
sketch8.addConstraint(Sketcher.Constraint("Horizontal", 2))
sketch8.addConstraint(Sketcher.Constraint("Horizontal", 5))
sketch8.addConstraint(Sketcher.Constraint("Horizontal", 8))
sketch8.addConstraint(Sketcher.Constraint("Symmetric", 3, 2, 6, 2, -2))
sketch8.addConstraint(Sketcher.Constraint("Parallel", 0, 3))
sketch8.addConstraint(Sketcher.Constraint("Parallel", 3, 6))
sketch8.addConstraint(Sketcher.Constraint("Equal", 4, 6))
sketch8.addConstraint(Sketcher.Constraint("Equal", 1, 7))
sketch8.addConstraint(Sketcher.Constraint("Angle", 0, Q("120 deg")))
sketch8.addConstraint(Sketcher.Constraint("DistanceY", 0, 2, 1, 2, 1.5))
sketch8.addConstraint(Sketcher.Constraint("DistanceY", 6, 2, 7, 2, 0.5))
sketch8.addConstraint(Sketcher.Constraint("DistanceX", 5, 2, 5, 1, 21.1547))
sketch8.addConstraint(Sketcher.Constraint("DistanceX", 8, 1, 8, 2, 18.845299))
sketch8.addConstraint(Sketcher.Constraint("Distance", 0, 18.845299))
sketch8.addConstraint(Sketcher.Constraint("DistanceX", 2, 1, 2, 2, 169.709837))
sketch8.addConstraint(Sketcher.Constraint("DistanceX", 1, 2, -1, 1, 84.854918))
sketch8.addConstraint(Sketcher.Constraint("DistanceY", 0, 2, -1, 1, 2.071797))
pad8 = body7.newObject("PartDesign::Pad", "Pad007")
pad8.Profile = sketch8
pad8.setExpression("Length", "Params.pad8_length")
pad8.Reversed = True

doc.recompute()
